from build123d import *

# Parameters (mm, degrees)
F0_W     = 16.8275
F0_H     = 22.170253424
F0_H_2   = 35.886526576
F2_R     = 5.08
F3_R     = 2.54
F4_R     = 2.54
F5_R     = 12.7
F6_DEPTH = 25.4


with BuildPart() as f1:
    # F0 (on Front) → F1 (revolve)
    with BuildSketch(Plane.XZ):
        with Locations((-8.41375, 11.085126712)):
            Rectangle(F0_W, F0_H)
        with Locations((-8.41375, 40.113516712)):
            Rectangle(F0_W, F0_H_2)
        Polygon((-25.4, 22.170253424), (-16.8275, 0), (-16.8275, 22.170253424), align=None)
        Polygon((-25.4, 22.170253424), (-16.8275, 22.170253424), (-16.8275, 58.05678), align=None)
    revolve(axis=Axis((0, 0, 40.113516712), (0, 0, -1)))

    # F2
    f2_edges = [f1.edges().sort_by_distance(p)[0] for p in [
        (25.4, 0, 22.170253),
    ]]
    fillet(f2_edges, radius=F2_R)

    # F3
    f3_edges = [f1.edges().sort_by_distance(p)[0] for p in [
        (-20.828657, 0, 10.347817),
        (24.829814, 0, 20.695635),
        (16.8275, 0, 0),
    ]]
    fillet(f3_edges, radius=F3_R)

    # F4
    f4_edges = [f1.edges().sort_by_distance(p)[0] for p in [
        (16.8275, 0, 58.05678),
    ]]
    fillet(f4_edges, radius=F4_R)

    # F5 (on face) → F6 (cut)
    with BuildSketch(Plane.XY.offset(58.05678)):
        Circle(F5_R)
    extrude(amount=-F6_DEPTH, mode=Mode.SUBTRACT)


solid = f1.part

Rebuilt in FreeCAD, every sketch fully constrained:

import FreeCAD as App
import Part
import Sketcher
from FreeCAD import Vector
Q = App.Units.Quantity


def edges_at(feature, points):
    """Names of the edges that pass closest to the given points."""
    edges = feature.Shape.Edges
    near = lambda p: min(range(len(edges)), key=lambda i: edges[i].distToShape(Part.Vertex(*p))[0])
    return sorted({f"Edge{near(p) + 1}" for p in points})


def add_polygon(sketch, points):
    """Adds a closed chain of lines whose ends are joined by coincident constraints."""
    first, n = sketch.GeometryCount, len(points)
    for a, b in zip(points, points[1:] + points[:1]):
        sketch.addGeometry(Part.LineSegment(App.Vector(*a, 0), App.Vector(*b, 0)), False)
    for i in range(n):
        sketch.addConstraint(Sketcher.Constraint("Coincident", first + i, 2, first + (i + 1) % n, 1))

doc = App.newDocument("Part")
body = doc.addObject("PartDesign::Body", "Body")

# Sketch on XZ plane
sketch1 = body.newObject("Sketcher::SketchObject", "Sketch")
sketch1.AttachmentSupport = (doc.getObject("XZ_Plane"), [""])
sketch1.MapMode = "FlatFace"
add_polygon(sketch1, [(-16.8275, 0), (0, 0), (0, 58.05678), (-16.8275, 58.05678), (-25.4, 22.170253)])  # lines 0-4
sketch1.addConstraint(Sketcher.Constraint("Horizontal", 0))
sketch1.addConstraint(Sketcher.Constraint("Vertical", 1))
sketch1.addConstraint(Sketcher.Constraint("Horizontal", 2))
sketch1.addConstraint(Sketcher.Constraint("Coincident", 0, 2, -1, 1))
sketch1.addConstraint(Sketcher.Constraint("Vertical", 2, 2, 4, 2))
sketch1.addConstraint(Sketcher.Constraint("DistanceX", 3, 2, -1, 1, Q("1 in")))
sketch1.addConstraint(Sketcher.Constraint("DistanceX", 0, 1, 0, 2, Q("0.6625 in")))
sketch1.addConstraint(Sketcher.Constraint("DistanceY", 1, 1, 1, 2, Q("2.2857 in")))
sketch1.addConstraint(Sketcher.Constraint("Distance", 3, 36.896213))
revolution = body.newObject("PartDesign::Revolution", "Revolution")
revolution.Profile = sketch1
revolution.ReferenceAxis = (sketch1, ["V_Axis"])
revolution.Angle = 360
doc.recompute()

fillet = body.newObject("PartDesign::Fillet", "Fillet")
fillet.Base = (revolution, edges_at(revolution, [(25.4, 0, 22.17)]))
fillet.Radius = Q("0.2 in")
doc.recompute()

fillet2 = body.newObject("PartDesign::Fillet", "Fillet001")
fillet2.Base = (fillet, edges_at(fillet, [(-20.829, 0, 10.348), (24.83, 0, 20.696), (16.828, 0, 0)]))
fillet2.Radius = Q("0.1 in")
doc.recompute()

fillet3 = body.newObject("PartDesign::Fillet", "Fillet002")
fillet3.Base = (fillet2, edges_at(fillet2, [(16.828, 0, 58.057)]))
fillet3.Radius = Q("0.1 in")

# Sketch on XY plane
sketch2 = body.newObject("Sketcher::SketchObject", "Sketch001")
sketch2.AttachmentSupport = (doc.getObject("XY_Plane"), [""])
sketch2.MapMode = "FlatFace"
sketch2.AttachmentOffset = App.Placement(Vector(0, 0, 2.2857 * 25.4), App.Rotation())
sketch2.addGeometry(Part.Circle(Vector(0, 0, 0), Vector(0, 0, 1), 12.7), False)
sketch2.addConstraint(Sketcher.Constraint("Coincident", 0, 3, -1, 1))
sketch2.addConstraint(Sketcher.Constraint("Diameter", 0, Q("1 in")))
pocket1 = body.newObject("PartDesign::Pocket", "Pocket")
pocket1.Profile = sketch2
pocket1.Length = Q("1 in")

doc.recompute()
